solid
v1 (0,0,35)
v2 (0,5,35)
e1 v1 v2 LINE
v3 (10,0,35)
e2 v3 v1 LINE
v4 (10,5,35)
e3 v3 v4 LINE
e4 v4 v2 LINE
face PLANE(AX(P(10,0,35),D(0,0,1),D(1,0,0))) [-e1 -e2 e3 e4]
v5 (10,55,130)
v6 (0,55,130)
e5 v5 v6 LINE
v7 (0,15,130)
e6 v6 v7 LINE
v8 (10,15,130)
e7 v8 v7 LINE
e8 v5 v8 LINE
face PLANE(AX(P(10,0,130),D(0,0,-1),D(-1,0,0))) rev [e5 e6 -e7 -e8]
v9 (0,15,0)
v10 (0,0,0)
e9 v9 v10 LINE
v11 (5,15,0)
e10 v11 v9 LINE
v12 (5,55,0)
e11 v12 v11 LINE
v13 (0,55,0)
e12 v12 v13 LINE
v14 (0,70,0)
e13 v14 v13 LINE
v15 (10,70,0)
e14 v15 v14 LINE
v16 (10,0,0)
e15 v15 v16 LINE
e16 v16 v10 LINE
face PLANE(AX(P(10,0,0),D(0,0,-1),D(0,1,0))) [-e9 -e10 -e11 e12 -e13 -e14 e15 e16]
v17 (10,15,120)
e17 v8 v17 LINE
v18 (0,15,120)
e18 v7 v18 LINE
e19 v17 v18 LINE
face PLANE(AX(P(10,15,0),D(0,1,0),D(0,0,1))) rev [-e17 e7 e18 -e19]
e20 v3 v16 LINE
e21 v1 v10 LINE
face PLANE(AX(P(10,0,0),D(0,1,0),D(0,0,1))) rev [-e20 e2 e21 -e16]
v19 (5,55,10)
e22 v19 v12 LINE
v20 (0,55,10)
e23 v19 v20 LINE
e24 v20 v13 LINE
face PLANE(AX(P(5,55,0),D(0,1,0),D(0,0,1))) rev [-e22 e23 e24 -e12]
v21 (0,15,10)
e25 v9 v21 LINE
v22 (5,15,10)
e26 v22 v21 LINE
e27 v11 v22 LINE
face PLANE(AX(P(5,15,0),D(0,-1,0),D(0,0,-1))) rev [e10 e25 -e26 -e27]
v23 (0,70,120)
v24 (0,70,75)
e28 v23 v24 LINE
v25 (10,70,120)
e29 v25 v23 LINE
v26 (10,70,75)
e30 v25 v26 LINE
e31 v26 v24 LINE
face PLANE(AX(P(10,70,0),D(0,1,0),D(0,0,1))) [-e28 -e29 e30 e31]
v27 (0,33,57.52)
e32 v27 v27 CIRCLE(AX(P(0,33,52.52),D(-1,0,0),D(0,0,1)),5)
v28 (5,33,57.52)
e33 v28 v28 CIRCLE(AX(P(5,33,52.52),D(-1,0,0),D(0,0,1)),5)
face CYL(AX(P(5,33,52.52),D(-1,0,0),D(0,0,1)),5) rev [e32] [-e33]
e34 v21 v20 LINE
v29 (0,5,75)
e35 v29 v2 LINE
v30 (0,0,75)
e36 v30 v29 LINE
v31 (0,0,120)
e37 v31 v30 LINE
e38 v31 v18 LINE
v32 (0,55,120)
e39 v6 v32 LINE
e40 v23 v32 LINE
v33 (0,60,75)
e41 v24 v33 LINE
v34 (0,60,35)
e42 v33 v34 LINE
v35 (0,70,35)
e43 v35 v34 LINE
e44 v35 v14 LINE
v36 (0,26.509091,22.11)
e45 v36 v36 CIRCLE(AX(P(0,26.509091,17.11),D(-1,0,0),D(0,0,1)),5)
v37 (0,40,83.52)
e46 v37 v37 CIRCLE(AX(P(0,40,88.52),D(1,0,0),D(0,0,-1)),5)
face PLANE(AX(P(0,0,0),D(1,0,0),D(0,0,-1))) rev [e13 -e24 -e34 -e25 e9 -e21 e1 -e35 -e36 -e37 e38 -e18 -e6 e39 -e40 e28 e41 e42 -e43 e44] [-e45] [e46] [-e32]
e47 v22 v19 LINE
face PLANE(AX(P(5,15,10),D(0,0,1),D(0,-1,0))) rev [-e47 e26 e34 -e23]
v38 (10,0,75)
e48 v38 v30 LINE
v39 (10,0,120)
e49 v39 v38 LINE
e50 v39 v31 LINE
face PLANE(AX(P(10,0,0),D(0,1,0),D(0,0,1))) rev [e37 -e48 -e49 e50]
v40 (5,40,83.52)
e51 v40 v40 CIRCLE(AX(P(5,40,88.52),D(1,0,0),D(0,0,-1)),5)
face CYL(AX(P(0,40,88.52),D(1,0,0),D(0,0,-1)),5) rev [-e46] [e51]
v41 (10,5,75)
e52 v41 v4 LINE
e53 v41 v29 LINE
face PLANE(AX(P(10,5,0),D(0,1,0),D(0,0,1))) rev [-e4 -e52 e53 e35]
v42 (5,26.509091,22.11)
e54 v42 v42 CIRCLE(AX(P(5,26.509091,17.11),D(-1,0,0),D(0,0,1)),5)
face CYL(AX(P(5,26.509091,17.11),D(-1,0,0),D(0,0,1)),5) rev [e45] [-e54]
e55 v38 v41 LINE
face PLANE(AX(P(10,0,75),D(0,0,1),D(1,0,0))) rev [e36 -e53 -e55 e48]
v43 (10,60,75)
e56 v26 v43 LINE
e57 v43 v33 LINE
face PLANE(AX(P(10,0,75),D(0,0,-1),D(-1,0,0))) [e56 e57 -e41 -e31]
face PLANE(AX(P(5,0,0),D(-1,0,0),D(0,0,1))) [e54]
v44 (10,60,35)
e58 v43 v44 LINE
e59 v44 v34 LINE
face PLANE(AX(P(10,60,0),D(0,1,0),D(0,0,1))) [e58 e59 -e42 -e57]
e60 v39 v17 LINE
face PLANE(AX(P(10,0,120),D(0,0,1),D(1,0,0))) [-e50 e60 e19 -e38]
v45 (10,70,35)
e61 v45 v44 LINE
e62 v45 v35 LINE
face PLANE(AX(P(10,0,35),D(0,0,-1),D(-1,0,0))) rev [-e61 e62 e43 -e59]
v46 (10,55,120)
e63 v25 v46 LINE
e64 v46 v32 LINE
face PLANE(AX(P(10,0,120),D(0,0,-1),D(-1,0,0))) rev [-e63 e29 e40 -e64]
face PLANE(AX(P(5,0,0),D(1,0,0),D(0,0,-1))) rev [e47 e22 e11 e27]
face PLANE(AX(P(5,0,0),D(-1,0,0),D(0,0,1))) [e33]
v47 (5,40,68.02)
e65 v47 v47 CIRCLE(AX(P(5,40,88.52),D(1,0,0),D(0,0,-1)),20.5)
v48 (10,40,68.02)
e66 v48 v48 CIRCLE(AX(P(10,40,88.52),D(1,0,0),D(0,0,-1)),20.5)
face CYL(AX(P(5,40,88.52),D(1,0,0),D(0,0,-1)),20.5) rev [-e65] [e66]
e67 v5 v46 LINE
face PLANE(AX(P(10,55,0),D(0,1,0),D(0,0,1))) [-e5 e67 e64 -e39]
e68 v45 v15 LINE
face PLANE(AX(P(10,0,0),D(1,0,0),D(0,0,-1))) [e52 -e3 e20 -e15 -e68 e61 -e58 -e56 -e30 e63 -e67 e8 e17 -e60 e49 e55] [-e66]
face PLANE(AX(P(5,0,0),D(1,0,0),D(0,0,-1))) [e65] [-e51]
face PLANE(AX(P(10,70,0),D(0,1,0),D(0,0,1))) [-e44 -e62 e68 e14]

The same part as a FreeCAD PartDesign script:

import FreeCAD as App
import Part
import Sketcher


def add_polygon(sketch, points):
    """Adds a closed chain of lines whose ends are joined by coincident constraints."""
    first, n = sketch.GeometryCount, len(points)
    for a, b in zip(points, points[1:] + points[:1]):
        sketch.addGeometry(Part.LineSegment(App.Vector(*a, 0), App.Vector(*b, 0)), False)
    for i in range(n):
        sketch.addConstraint(Sketcher.Constraint("Coincident", first + i, 2, first + (i + 1) % n, 1))

doc = App.newDocument("Part")
params = doc.addObject("Spreadsheet::Sheet", "Params")
for row, (alias, value) in enumerate([
    ("sketch1_width", "15 mm"),
    ("sketch1_width2", "40 mm"),
    ("sketch1_width3", "5 mm"),
    ("sketch1_width4", "10 mm"),
    ("sketch1_height", "45 mm"),
    ("pad1_length", "10 mm"),
    ("sketch2_diameter", "41 mm"),
    ("pocket1_length", "5 mm"),
    ("sketch3_diameter", "10 mm"),
    ("sketch4_diameter", "10 mm"),
    ("pocket3_length", "5 mm"),
    ("sketch5_width", "40 mm"),
    ("sketch5_height", "10 mm"),
    ("pocket4_length", "5 mm"),
], start=1):
    params.set(f"A{row}", alias)
    params.set(f"B{row}", "=" + value)
    params.setAlias(f"B{row}", alias)

body = doc.addObject("PartDesign::Body", "Body")

# Sketch on YZ plane
sketch1 = body.newObject("Sketcher::SketchObject", "Sketch")
sketch1.AttachmentSupport = (doc.getObject("YZ_Plane"), [""])
sketch1.MapMode = "FlatFace"
add_polygon(sketch1, [(70, 75), (70, 120), (55, 120), (55, 130), (15, 130), (15, 120), (0, 120), (0, 75), (5, 75), (5, 35), (0, 35), (0, 0), (70, 0), (70, 35), (60, 35), (60, 75)])  # lines 0-15
sketch1.addConstraint([
    Sketcher.Constraint("Vertical", 0),
    Sketcher.Constraint("Horizontal", 1),
    Sketcher.Constraint("Vertical", 2),
    Sketcher.Constraint("Horizontal", 3),
    Sketcher.Constraint("Vertical", 4),
    Sketcher.Constraint("Horizontal", 5),
    Sketcher.Constraint("Vertical", 6),
    Sketcher.Constraint("Horizontal", 7),
    Sketcher.Constraint("Vertical", 8),
    Sketcher.Constraint("Horizontal", 9),
    Sketcher.Constraint("Vertical", 10),
    Sketcher.Constraint("Horizontal", 11),
    Sketcher.Constraint("Vertical", 12),
    Sketcher.Constraint("Horizontal", 13),
    Sketcher.Constraint("Vertical", 14),
    Sketcher.Constraint("Horizontal", 15),
    Sketcher.Constraint("Coincident", 10, 2, -1, 1),
    Sketcher.Constraint("PointOnObject", 5, 2, -2),
    Sketcher.Constraint("Horizontal", 1, 2, 4, 2),
    Sketcher.Constraint("Horizontal", 9, 2, 12, 2),
    Sketcher.Constraint("Horizontal", 7, 2, 14, 2),
    Sketcher.Constraint("Vertical", 0, 2, 11, 2),
    Sketcher.Constraint("Equal", 1, 5),
    Sketcher.Constraint("Equal", 15, 2),
    Sketcher.Constraint("Equal", 3, 8),
    Sketcher.Constraint("DistanceX", 1, 2, 1, 1, 15.0),
    Sketcher.Constraint("DistanceX", 3, 2, 3, 1, 40.0),
    Sketcher.Constraint("DistanceX", 7, 1, 7, 2, 5.0),
    Sketcher.Constraint("DistanceX", 13, 2, 13, 1, 10.0),
    Sketcher.Constraint("DistanceY", 0, 1, 0, 2, 45.0),
    Sketcher.Constraint("DistanceY", 10, 2, 10, 1, 35.0),
])
sketch1.setExpression("Constraints[41]", "Params.sketch1_width")
sketch1.setExpression("Constraints[42]", "Params.sketch1_width2")
sketch1.setExpression("Constraints[43]", "Params.sketch1_width3")
sketch1.setExpression("Constraints[44]", "Params.sketch1_width4")
sketch1.setExpression("Constraints[45]", "Params.sketch1_height")
pad1 = body.newObject("PartDesign::Pad", "Pad")
pad1.Profile = sketch1
pad1.setExpression("Length", "Params.pad1_length")

# Sketch on YZ plane
sketch2 = body.newObject("Sketcher::SketchObject", "Sketch001")
sketch2.AttachmentSupport = (doc.getObject("YZ_Plane"), [""])
sketch2.MapMode = "FlatFace"
sketch2.AttachmentOffset = App.Placement(App.Vector(0, 0, 10), App.Rotation())
sketch2.addGeometry(Part.Circle(App.Vector(40, 89, 0), App.Vector(0, 0, 1), 20), False)
sketch2.addConstraint([
    Sketcher.Constraint("Diameter", 0, 41.0),
    Sketcher.Constraint("DistanceX", -1, 1, 0, 3, 40.0),
    Sketcher.Constraint("DistanceY", -1, 1, 0, 3, 88.52),
])
sketch2.setExpression("Constraints[0]", "Params.sketch2_diameter")
pocket1 = body.newObject("PartDesign::Pocket", "Pocket")
pocket1.Profile = sketch2
pocket1.setExpression("Length", "Params.pocket1_length")

# Sketch on YZ plane
sketch3 = body.newObject("Sketcher::SketchObject", "Sketch002")
sketch3.AttachmentSupport = (doc.getObject("YZ_Plane"), [""])
sketch3.MapMode = "FlatFace"
sketch3.AttachmentOffset = App.Placement(App.Vector(0, 0, 5), App.Rotation())
sketch3.addGeometry(Part.Circle(App.Vector(40, 89, 0), App.Vector(0, 0, 1), 5), False)
sketch3.addConstraint([
    Sketcher.Constraint("Diameter", 0, 10.0),
    Sketcher.Constraint("DistanceX", -1, 1, 0, 3, 40.0),
    Sketcher.Constraint("DistanceY", -1, 1, 0, 3, 88.52),
])
sketch3.setExpression("Constraints[0]", "Params.sketch3_diameter")
pocket2 = body.newObject("PartDesign::Pocket", "Pocket001")
pocket2.Profile = sketch3
pocket2.Type = "ThroughAll"

# Sketch on YZ plane
sketch4 = body.newObject("Sketcher::SketchObject", "Sketch003")
sketch4.AttachmentSupport = (doc.getObject("YZ_Plane"), [""])
sketch4.MapMode = "FlatFace"
sketch4.addGeometry([
    Part.Circle(App.Vector(27, 17, 0), App.Vector(0, 0, 1), 5),
    Part.Circle(App.Vector(33, 53, 0), App.Vector(0, 0, 1), 5),
], False)
sketch4.addConstraint([
    Sketcher.Constraint("Equal", 0, 1),
    Sketcher.Constraint("Diameter", 0, 10.0),
    Sketcher.Constraint("DistanceX", -1, 1, 1, 3, 33.0),
    Sketcher.Constraint("DistanceY", -1, 1, 0, 3, 17.11),
    Sketcher.Constraint("DistanceY", -1, 1, 1, 3, 52.52),
    Sketcher.Constraint("DistanceX", -1, 1, 0, 3, 26.509091),
])
sketch4.setExpression("Constraints[1]", "Params.sketch4_diameter")
pocket3 = body.newObject("PartDesign::Pocket", "Pocket002")
pocket3.Profile = sketch4
pocket3.setExpression("Length", "Params.pocket3_length")
pocket3.Reversed = True

# Sketch on YZ plane
sketch5 = body.newObject("Sketcher::SketchObject", "Sketch004")
sketch5.AttachmentSupport = (doc.getObject("YZ_Plane"), [""])
sketch5.MapMode = "FlatFace"
add_polygon(sketch5, [(55, 0), (15, 0), (15, 10), (55, 10)])  # lines 0-3
sketch5.addConstraint([
    Sketcher.Constraint("Horizontal", 0),
    Sketcher.Constraint("Vertical", 1),
    Sketcher.Constraint("Horizontal", 2),
    Sketcher.Constraint("Vertical", 3),
    Sketcher.Constraint("PointOnObject", 0, 2, -1),
    Sketcher.Constraint("DistanceX", 0, 2, 0, 1, 40.0),
    Sketcher.Constraint("DistanceY", 1, 1, 1, 2, 10.0),
    Sketcher.Constraint("DistanceX", -1, 1, 0, 2, 15.0),
])
sketch5.setExpression("Constraints[9]", "Params.sketch5_width")
sketch5.setExpression("Constraints[10]", "Params.sketch5_height")
pocket4 = body.newObject("PartDesign::Pocket", "Pocket003")
pocket4.Profile = sketch5
pocket4.setExpression("Length", "Params.pocket4_length")
pocket4.Reversed = True

doc.recompute()
